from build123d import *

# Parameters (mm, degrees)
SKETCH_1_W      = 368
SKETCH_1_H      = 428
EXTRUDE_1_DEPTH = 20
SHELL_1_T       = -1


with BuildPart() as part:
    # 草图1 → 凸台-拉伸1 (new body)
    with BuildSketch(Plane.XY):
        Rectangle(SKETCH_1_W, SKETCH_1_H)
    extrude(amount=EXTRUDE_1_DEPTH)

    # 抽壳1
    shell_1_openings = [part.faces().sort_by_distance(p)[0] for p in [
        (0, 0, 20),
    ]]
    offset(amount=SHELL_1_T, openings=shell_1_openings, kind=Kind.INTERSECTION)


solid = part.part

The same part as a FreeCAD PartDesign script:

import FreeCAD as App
import Part
import Sketcher
Q = App.Units.Quantity


def faces_at(feature, points):
    """Names of the faces that lie closest to the given points."""
    faces = feature.Shape.Faces
    near = lambda p: min(range(len(faces)), key=lambda i: faces[i].distToShape(Part.Vertex(*p))[0])
    return sorted({f"Face{near(p) + 1}" for p in points})

doc = App.newDocument("Part")
body = doc.addObject("PartDesign::Body", "Body")

sketch1 = body.newObject("Sketcher::SketchObject", "Sketch")
sketch1.AttachmentSupport = (doc.getObject("XY_Plane"), [""])
sketch1.MapMode = "FlatFace"
sketch1.addGeometry(Part.LineSegment(App.Vector(-184, 214, 0), App.Vector(-184, -214, 0)), False)
sketch1.addGeometry(Part.LineSegment(App.Vector(-184, -214, 0), App.Vector(184, -214, 0)), False)
sketch1.addGeometry(Part.LineSegment(App.Vector(184, -214, 0), App.Vector(184, 214, 0)), False)
sketch1.addGeometry(Part.LineSegment(App.Vector(184, 214, 0), App.Vector(-184, 214, 0)), False)
sketch1.addConstraint(Sketcher.Constraint("Coincident", 0, 2, 1, 1))
sketch1.addConstraint(Sketcher.Constraint("Coincident", 1, 2, 2, 1))
sketch1.addConstraint(Sketcher.Constraint("Coincident", 2, 2, 3, 1))
sketch1.addConstraint(Sketcher.Constraint("Coincident", 3, 2, 0, 1))
sketch1.addConstraint(Sketcher.Constraint("Vertical", 0))
sketch1.addConstraint(Sketcher.Constraint("Horizontal", 1))
sketch1.addConstraint(Sketcher.Constraint("Vertical", 2))
sketch1.addConstraint(Sketcher.Constraint("Horizontal", 3))
sketch1.addConstraint(Sketcher.Constraint("Symmetric", 0, 2, 2, 2, -1, 1))
sketch1.addConstraint(Sketcher.Constraint("DistanceX", 1, 1, 1, 2, Q("368 mm")))
sketch1.addConstraint(Sketcher.Constraint("DistanceY", 0, 2, 0, 1, Q("428 mm")))
pad1 = body.newObject("PartDesign::Pad", "Pad")
pad1.Profile = sketch1
pad1.Length = 20
doc.recompute()

thickness = body.newObject("PartDesign::Thickness", "Thickness")
thickness.Base = (pad1, faces_at(pad1, [(0, 0, 20)]))
thickness.Value = 1
thickness.Reversed = True
thickness.Join = "Intersection"

doc.recompute()
